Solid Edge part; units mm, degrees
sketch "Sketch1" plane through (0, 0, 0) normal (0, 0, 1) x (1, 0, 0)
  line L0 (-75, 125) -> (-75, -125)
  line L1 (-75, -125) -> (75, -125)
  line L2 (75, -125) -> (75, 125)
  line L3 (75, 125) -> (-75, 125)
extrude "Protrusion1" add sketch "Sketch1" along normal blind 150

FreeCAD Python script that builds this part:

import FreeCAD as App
import Part
import Sketcher

V = App.Vector
Q = App.Units.Quantity

doc = App.newDocument("Part")
body = doc.addObject("PartDesign::Body", "Body")

# Sketch on XY plane
sketch1 = body.newObject("Sketcher::SketchObject", "Sketch")
sketch1.AttachmentSupport = (doc.getObject("XY_Plane"), [""])
sketch1.MapMode = "FlatFace"
sketch1.addGeometry([
    Part.LineSegment(V(75, 125, 0), V(-75, 125, 0)),
    Part.LineSegment(V(-75, 125, 0), V(-75, -125, 0)),
    Part.LineSegment(V(-75, -125, 0), V(75, -125, 0)),
    Part.LineSegment(V(75, -125, 0), V(75, 125, 0)),
], False)
sketch1.addConstraint([
    Sketcher.Constraint("Coincident", 0, 2, 1, 1),
    Sketcher.Constraint("Coincident", 1, 2, 2, 1),
    Sketcher.Constraint("Coincident", 2, 2, 3, 1),
    Sketcher.Constraint("Coincident", 3, 2, 0, 1),
    Sketcher.Constraint("Horizontal", 0),
    Sketcher.Constraint("Vertical", 1),
    Sketcher.Constraint("Horizontal", 2),
    Sketcher.Constraint("Vertical", 3),
    Sketcher.Constraint("Symmetric", 0, 2, 2, 2, -1, 1),
    Sketcher.Constraint("DistanceX", 0, 2, 0, 1, Q("150 mm")),
    Sketcher.Constraint("DistanceY", 1, 2, 1, 1, Q("250 mm")),
])
pad1 = body.newObject("PartDesign::Pad", "Pad")
pad1.Profile = sketch1
pad1.Length = 150

doc.recompute()
